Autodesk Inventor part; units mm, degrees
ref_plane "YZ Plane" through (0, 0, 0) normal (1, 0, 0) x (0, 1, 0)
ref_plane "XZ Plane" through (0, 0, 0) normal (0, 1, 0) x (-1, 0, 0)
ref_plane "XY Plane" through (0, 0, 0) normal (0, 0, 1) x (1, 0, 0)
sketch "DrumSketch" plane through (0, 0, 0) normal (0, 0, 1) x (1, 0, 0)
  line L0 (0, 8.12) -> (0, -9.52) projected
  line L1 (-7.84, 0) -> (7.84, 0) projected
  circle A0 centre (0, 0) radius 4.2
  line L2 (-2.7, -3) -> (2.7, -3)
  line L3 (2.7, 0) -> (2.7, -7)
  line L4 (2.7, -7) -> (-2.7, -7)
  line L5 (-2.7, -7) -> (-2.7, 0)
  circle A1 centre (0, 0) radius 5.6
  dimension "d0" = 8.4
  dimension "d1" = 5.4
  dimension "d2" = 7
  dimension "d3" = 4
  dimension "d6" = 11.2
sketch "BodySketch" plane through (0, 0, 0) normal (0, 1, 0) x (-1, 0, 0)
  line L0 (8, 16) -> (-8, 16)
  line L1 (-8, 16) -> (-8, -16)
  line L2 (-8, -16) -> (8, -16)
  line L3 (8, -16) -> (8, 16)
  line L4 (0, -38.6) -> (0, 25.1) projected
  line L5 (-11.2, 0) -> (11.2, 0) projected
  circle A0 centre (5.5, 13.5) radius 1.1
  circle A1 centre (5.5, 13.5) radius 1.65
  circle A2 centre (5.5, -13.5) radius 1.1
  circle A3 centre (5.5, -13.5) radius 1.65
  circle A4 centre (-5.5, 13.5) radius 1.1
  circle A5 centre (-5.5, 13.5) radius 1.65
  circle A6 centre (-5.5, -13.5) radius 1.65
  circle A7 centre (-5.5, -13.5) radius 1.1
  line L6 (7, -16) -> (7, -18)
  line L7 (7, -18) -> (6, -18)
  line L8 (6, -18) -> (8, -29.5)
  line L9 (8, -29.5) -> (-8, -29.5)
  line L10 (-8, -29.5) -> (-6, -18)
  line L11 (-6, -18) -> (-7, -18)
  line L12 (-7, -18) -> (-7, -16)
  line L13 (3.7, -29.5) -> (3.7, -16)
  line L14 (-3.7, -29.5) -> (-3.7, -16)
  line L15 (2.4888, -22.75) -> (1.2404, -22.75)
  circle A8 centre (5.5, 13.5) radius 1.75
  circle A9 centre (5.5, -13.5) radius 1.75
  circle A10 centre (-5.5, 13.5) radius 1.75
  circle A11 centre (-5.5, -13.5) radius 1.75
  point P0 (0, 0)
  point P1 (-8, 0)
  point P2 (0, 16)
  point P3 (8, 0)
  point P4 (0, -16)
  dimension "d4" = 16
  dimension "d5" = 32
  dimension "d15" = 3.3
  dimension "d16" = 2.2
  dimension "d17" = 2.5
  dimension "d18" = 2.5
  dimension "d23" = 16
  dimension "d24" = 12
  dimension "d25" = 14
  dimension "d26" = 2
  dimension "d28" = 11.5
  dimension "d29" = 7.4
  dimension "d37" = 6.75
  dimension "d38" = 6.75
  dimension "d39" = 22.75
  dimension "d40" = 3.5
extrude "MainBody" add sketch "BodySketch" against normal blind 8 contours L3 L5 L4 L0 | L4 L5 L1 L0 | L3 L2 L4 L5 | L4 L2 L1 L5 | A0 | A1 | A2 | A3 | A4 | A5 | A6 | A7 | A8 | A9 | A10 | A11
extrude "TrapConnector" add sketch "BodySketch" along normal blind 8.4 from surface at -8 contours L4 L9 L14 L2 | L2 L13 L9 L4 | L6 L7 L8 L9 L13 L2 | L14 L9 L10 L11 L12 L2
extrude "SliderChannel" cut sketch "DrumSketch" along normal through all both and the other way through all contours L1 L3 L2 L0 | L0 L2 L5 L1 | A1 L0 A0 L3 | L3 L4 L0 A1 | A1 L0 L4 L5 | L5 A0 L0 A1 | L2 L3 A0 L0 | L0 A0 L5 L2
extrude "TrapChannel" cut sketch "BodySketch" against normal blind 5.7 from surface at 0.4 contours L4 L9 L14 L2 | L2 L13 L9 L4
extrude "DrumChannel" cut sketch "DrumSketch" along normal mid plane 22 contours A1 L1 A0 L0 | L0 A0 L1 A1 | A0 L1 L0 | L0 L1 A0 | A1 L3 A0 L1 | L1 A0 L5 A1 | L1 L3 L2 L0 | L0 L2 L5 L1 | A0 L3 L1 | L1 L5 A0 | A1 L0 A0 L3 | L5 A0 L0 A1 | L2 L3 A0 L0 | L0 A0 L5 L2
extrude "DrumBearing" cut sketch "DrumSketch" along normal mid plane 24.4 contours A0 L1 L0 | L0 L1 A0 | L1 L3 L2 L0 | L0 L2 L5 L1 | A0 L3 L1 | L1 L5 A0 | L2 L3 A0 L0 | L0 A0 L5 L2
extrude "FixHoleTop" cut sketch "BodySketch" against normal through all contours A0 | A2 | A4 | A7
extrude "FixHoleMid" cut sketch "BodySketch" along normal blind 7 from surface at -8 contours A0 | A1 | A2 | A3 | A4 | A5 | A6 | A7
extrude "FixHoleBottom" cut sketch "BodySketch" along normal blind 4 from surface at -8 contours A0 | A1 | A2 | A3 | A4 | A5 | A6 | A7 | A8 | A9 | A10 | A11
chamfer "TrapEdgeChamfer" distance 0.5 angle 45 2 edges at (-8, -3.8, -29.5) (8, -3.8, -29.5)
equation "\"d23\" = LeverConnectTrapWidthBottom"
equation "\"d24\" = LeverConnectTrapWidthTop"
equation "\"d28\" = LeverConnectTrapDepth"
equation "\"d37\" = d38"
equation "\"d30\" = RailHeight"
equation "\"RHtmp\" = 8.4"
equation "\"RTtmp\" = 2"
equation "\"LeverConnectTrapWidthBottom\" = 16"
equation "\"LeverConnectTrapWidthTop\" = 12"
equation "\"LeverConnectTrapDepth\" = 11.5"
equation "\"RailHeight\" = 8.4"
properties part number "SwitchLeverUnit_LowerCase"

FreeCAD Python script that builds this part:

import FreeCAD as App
import Part
import Sketcher

V = App.Vector


def edges_at(feature, points):
    """Names of the edges that pass closest to the given points."""
    edges = feature.Shape.Edges
    near = lambda p: min(range(len(edges)), key=lambda i: edges[i].distToShape(Part.Vertex(*p))[0])
    return sorted({f"Edge{near(p) + 1}" for p in points})


def add_polygon(sketch, points):
    """Adds a closed chain of lines whose ends are joined by coincident constraints."""
    first, n = sketch.GeometryCount, len(points)
    for a, b in zip(points, points[1:] + points[:1]):
        sketch.addGeometry(Part.LineSegment(App.Vector(*a, 0), App.Vector(*b, 0)), False)
    for i in range(n):
        sketch.addConstraint(Sketcher.Constraint("Coincident", first + i, 2, first + (i + 1) % n, 1))

doc = App.newDocument("Part")
body = doc.addObject("PartDesign::Body", "Body")

# Sketch on XZ plane
sketch1 = doc.addObject("Sketcher::SketchObject", "Sketch")
body.addObject(sketch1)
sketch1.AttachmentSupport = (doc.XZ_Plane, [""])
sketch1.MapMode = "FlatFace"
add_polygon(sketch1, [(-8, 16), (8, 16), (8, -16), (-8, -16)])  # lines 0-3
sketch1.addConstraint(Sketcher.Constraint("Horizontal", 0))
sketch1.addConstraint(Sketcher.Constraint("Vertical", 1))
sketch1.addConstraint(Sketcher.Constraint("Horizontal", 2))
sketch1.addConstraint(Sketcher.Constraint("Vertical", 3))
sketch1.addConstraint(Sketcher.Constraint("Symmetric", 0, 2, 2, 2, -1, 1))
sketch1.addConstraint(Sketcher.Constraint("DistanceX", 0, 1, 0, 2, 16.0))
sketch1.addConstraint(Sketcher.Constraint("DistanceY", 1, 2, 1, 1, 32.0))
pad1 = doc.addObject("PartDesign::Pad", "Pad")
body.addObject(pad1)
pad1.Profile = sketch1
pad1.Length = 8

# Sketch on XZ plane
sketch2 = doc.addObject("Sketcher::SketchObject", "Sketch001")
body.addObject(sketch2)
sketch2.AttachmentSupport = (doc.XZ_Plane, [""])
sketch2.MapMode = "FlatFace"
sketch2.AttachmentOffset = App.Placement(V(0, 0, 8), App.Rotation())
add_polygon(sketch2, [(-8, -29.5), (-6, -18), (-7, -18), (-7, -16), (7, -16), (7, -18), (6, -18), (8, -29.5)])  # lines 0-7
sketch2.addConstraint(Sketcher.Constraint("Horizontal", 1))
sketch2.addConstraint(Sketcher.Constraint("Vertical", 2))
sketch2.addConstraint(Sketcher.Constraint("Horizontal", 3))
sketch2.addConstraint(Sketcher.Constraint("Vertical", 4))
sketch2.addConstraint(Sketcher.Constraint("Horizontal", 5))
sketch2.addConstraint(Sketcher.Constraint("Horizontal", 7))
sketch2.addConstraint(Sketcher.Constraint("Symmetric", 1, 2, 4, 2, -2))
sketch2.addConstraint(Sketcher.Constraint("Equal", 1, 5))
sketch2.addConstraint(Sketcher.Constraint("Equal", 0, 6))
sketch2.addConstraint(Sketcher.Constraint("DistanceX", 3, 1, 3, 2, 14.0))
sketch2.addConstraint(Sketcher.Constraint("DistanceX", 7, 2, 7, 1, 16.0))
sketch2.addConstraint(Sketcher.Constraint("DistanceY", 2, 1, 2, 2, 2.0))
sketch2.addConstraint(Sketcher.Constraint("DistanceY", 2, 2, -1, 1, 16.0))
sketch2.addConstraint(Sketcher.Constraint("DistanceX", 0, 2, 5, 2, 12.0))
sketch2.addConstraint(Sketcher.Constraint("DistanceY", 6, 2, 4, 2, 11.5))
pad2 = doc.addObject("PartDesign::Pad", "Pad001")
body.addObject(pad2)
pad2.Profile = sketch2
pad2.Length = 8.4
pad2.Reversed = True

# Sketch on XY plane
sketch3 = doc.addObject("Sketcher::SketchObject", "Sketch002")
body.addObject(sketch3)
sketch3.AttachmentSupport = (doc.XY_Plane, [""])
sketch3.MapMode = "FlatFace"
add_polygon(sketch3, [(2.7, 0), (-2.7, 0), (-2.7, -7), (2.7, -7)])  # lines 0-3
sketch3.addConstraint(Sketcher.Constraint("Horizontal", 0))
sketch3.addConstraint(Sketcher.Constraint("Vertical", 1))
sketch3.addConstraint(Sketcher.Constraint("Horizontal", 2))
sketch3.addConstraint(Sketcher.Constraint("Vertical", 3))
sketch3.addConstraint(Sketcher.Constraint("Symmetric", 0, 2, 3, 2, -1, 1))
sketch3.addConstraint(Sketcher.Constraint("DistanceY", 1, 2, 1, 1, 7.0))
sketch3.addConstraint(Sketcher.Constraint("DistanceX", 0, 2, 0, 1, 5.4))
pocket1 = doc.addObject("PartDesign::Pocket", "Pocket")
body.addObject(pocket1)
pocket1.Profile = sketch3
pocket1.Type = "ThroughAll"
pocket1.Midplane = True

# Sketch on XZ plane
sketch4 = doc.addObject("Sketcher::SketchObject", "Sketch003")
body.addObject(sketch4)
sketch4.AttachmentSupport = (doc.XZ_Plane, [""])
sketch4.MapMode = "FlatFace"
sketch4.AttachmentOffset = App.Placement(V(0, 0, -0.4), App.Rotation())
add_polygon(sketch4, [(3.7, -29.5), (-3.7, -29.5), (-3.7, -16), (3.7, -16)])  # lines 0-3
sketch4.addConstraint(Sketcher.Constraint("Horizontal", 0))
sketch4.addConstraint(Sketcher.Constraint("Vertical", 1))
sketch4.addConstraint(Sketcher.Constraint("Horizontal", 2))
sketch4.addConstraint(Sketcher.Constraint("Vertical", 3))
sketch4.addConstraint(Sketcher.Constraint("DistanceX", 0, 2, 0, 1, 7.4))
sketch4.addConstraint(Sketcher.Constraint("DistanceY", 1, 2, -1, 1, 16.0))
sketch4.addConstraint(Sketcher.Constraint("DistanceY", 1, 1, 1, 2, 13.5))
sketch4.addConstraint(Sketcher.Constraint("DistanceX", 0, 2, -1, 1, 3.7))
pocket2 = doc.addObject("PartDesign::Pocket", "Pocket001")
body.addObject(pocket2)
pocket2.Profile = sketch4
pocket2.Length = 5.7
pocket2.Reversed = True

# Sketch on XY plane
sketch5 = doc.addObject("Sketcher::SketchObject", "Sketch004")
body.addObject(sketch5)
sketch5.AttachmentSupport = (doc.XY_Plane, [""])
sketch5.MapMode = "FlatFace"
sketch5.addGeometry(Part.Circle(V(0, 0, 0), V(0, 0, 1), 5.6), False)
sketch5.addConstraint(Sketcher.Constraint("Coincident", 0, 3, -1, 1))
sketch5.addConstraint(Sketcher.Constraint("Diameter", 0, 11.2))
pocket3 = doc.addObject("PartDesign::Pocket", "Pocket002")
body.addObject(pocket3)
pocket3.Profile = sketch5
pocket3.Length = 22
pocket3.Midplane = True

# Sketch on XY plane
sketch6 = doc.addObject("Sketcher::SketchObject", "Sketch005")
body.addObject(sketch6)
sketch6.AttachmentSupport = (doc.XY_Plane, [""])
sketch6.MapMode = "FlatFace"
sketch6.addGeometry(Part.Circle(V(0, 0, 0), V(0, 0, 1), 4.2), False)
sketch6.addConstraint(Sketcher.Constraint("Coincident", 0, 3, -1, 1))
sketch6.addConstraint(Sketcher.Constraint("Diameter", 0, 8.4))
pocket4 = doc.addObject("PartDesign::Pocket", "Pocket003")
body.addObject(pocket4)
pocket4.Profile = sketch6
pocket4.Length = 24.4
pocket4.Midplane = True

# Sketch on XZ plane
sketch7 = doc.addObject("Sketcher::SketchObject", "Sketch006")
body.addObject(sketch7)
sketch7.AttachmentSupport = (doc.XZ_Plane, [""])
sketch7.MapMode = "FlatFace"
sketch7.addGeometry(Part.Circle(V(-5.5, 13.5, 0), V(0, 0, 1), 1.1), False)
sketch7.addGeometry(Part.Circle(V(-5.5, -13.5, 0), V(0, 0, 1), 1.1), False)
sketch7.addGeometry(Part.Circle(V(5.5, 13.5, 0), V(0, 0, 1), 1.1), False)
sketch7.addGeometry(Part.Circle(V(5.5, -13.5, 0), V(0, 0, 1), 1.1), False)
sketch7.addConstraint(Sketcher.Constraint("Equal", 0, 1))
sketch7.addConstraint(Sketcher.Constraint("Equal", 1, 2))
sketch7.addConstraint(Sketcher.Constraint("Equal", 2, 3))
sketch7.addConstraint(Sketcher.Constraint("Symmetric", 1, 3, 2, 3, -1, 1))
sketch7.addConstraint(Sketcher.Constraint("Symmetric", 0, 3, 3, 3, -1, 1))
sketch7.addConstraint(Sketcher.Constraint("Symmetric", 0, 3, 2, 3, -2))
sketch7.addConstraint(Sketcher.Constraint("Diameter", 0, 2.2))
sketch7.addConstraint(Sketcher.Constraint("DistanceY", 1, 3, 0, 3, 27.0))
sketch7.addConstraint(Sketcher.Constraint("DistanceX", 0, 3, 2, 3, 11.0))
pocket5 = doc.addObject("PartDesign::Pocket", "Pocket004")
body.addObject(pocket5)
pocket5.Profile = sketch7
pocket5.Type = "ThroughAll"
pocket5.Reversed = True

# Sketch on XZ plane
sketch8 = doc.addObject("Sketcher::SketchObject", "Sketch007")
body.addObject(sketch8)
sketch8.AttachmentSupport = (doc.XZ_Plane, [""])
sketch8.MapMode = "FlatFace"
sketch8.AttachmentOffset = App.Placement(V(0, 0, 8), App.Rotation())
sketch8.addGeometry(Part.Circle(V(-5.5, 13.5, 0), V(0, 0, 1), 1.65), False)
sketch8.addGeometry(Part.Circle(V(-5.5, -13.5, 0), V(0, 0, 1), 1.65), False)
sketch8.addGeometry(Part.Circle(V(5.5, 13.5, 0), V(0, 0, 1), 1.65), False)
sketch8.addGeometry(Part.Circle(V(5.5, -13.5, 0), V(0, 0, 1), 1.65), False)
sketch8.addConstraint(Sketcher.Constraint("Equal", 0, 1))
sketch8.addConstraint(Sketcher.Constraint("Equal", 1, 2))
sketch8.addConstraint(Sketcher.Constraint("Equal", 2, 3))
sketch8.addConstraint(Sketcher.Constraint("Symmetric", 1, 3, 2, 3, -1, 1))
sketch8.addConstraint(Sketcher.Constraint("Symmetric", 0, 3, 3, 3, -1, 1))
sketch8.addConstraint(Sketcher.Constraint("Symmetric", 0, 3, 2, 3, -2))
sketch8.addConstraint(Sketcher.Constraint("Diameter", 0, 3.3))
sketch8.addConstraint(Sketcher.Constraint("DistanceY", 1, 3, 0, 3, 27.0))
sketch8.addConstraint(Sketcher.Constraint("DistanceX", 0, 3, 2, 3, 11.0))
pocket6 = doc.addObject("PartDesign::Pocket", "Pocket005")
body.addObject(pocket6)
pocket6.Profile = sketch8
pocket6.Length = 7

# Sketch on XZ plane
sketch9 = doc.addObject("Sketcher::SketchObject", "Sketch008")
body.addObject(sketch9)
sketch9.AttachmentSupport = (doc.XZ_Plane, [""])
sketch9.MapMode = "FlatFace"
sketch9.AttachmentOffset = App.Placement(V(0, 0, 8), App.Rotation())
sketch9.addGeometry(Part.Circle(V(-5.5, 13.5, 0), V(0, 0, 1), 1.75), False)
sketch9.addGeometry(Part.Circle(V(-5.5, -13.5, 0), V(0, 0, 1), 1.75), False)
sketch9.addGeometry(Part.Circle(V(5.5, 13.5, 0), V(0, 0, 1), 1.75), False)
sketch9.addGeometry(Part.Circle(V(5.5, -13.5, 0), V(0, 0, 1), 1.75), False)
sketch9.addConstraint(Sketcher.Constraint("Equal", 0, 1))
sketch9.addConstraint(Sketcher.Constraint("Equal", 1, 2))
sketch9.addConstraint(Sketcher.Constraint("Equal", 2, 3))
sketch9.addConstraint(Sketcher.Constraint("Symmetric", 1, 3, 2, 3, -1, 1))
sketch9.addConstraint(Sketcher.Constraint("Symmetric", 0, 3, 3, 3, -1, 1))
sketch9.addConstraint(Sketcher.Constraint("Symmetric", 0, 3, 2, 3, -2))
sketch9.addConstraint(Sketcher.Constraint("Diameter", 0, 3.5))
sketch9.addConstraint(Sketcher.Constraint("DistanceY", 1, 3, 0, 3, 27.0))
sketch9.addConstraint(Sketcher.Constraint("DistanceX", 0, 3, 2, 3, 11.0))
pocket7 = doc.addObject("PartDesign::Pocket", "Pocket006")
body.addObject(pocket7)
pocket7.Profile = sketch9
pocket7.Length = 4
doc.recompute()

chamfer = doc.addObject("PartDesign::Chamfer", "Chamfer")
body.addObject(chamfer)
chamfer.Base = (pocket7, edges_at(pocket7, [(-8, -3.8, -29.5), (8, -3.8, -29.5)]))
chamfer.Size = 0.5

doc.recompute()
